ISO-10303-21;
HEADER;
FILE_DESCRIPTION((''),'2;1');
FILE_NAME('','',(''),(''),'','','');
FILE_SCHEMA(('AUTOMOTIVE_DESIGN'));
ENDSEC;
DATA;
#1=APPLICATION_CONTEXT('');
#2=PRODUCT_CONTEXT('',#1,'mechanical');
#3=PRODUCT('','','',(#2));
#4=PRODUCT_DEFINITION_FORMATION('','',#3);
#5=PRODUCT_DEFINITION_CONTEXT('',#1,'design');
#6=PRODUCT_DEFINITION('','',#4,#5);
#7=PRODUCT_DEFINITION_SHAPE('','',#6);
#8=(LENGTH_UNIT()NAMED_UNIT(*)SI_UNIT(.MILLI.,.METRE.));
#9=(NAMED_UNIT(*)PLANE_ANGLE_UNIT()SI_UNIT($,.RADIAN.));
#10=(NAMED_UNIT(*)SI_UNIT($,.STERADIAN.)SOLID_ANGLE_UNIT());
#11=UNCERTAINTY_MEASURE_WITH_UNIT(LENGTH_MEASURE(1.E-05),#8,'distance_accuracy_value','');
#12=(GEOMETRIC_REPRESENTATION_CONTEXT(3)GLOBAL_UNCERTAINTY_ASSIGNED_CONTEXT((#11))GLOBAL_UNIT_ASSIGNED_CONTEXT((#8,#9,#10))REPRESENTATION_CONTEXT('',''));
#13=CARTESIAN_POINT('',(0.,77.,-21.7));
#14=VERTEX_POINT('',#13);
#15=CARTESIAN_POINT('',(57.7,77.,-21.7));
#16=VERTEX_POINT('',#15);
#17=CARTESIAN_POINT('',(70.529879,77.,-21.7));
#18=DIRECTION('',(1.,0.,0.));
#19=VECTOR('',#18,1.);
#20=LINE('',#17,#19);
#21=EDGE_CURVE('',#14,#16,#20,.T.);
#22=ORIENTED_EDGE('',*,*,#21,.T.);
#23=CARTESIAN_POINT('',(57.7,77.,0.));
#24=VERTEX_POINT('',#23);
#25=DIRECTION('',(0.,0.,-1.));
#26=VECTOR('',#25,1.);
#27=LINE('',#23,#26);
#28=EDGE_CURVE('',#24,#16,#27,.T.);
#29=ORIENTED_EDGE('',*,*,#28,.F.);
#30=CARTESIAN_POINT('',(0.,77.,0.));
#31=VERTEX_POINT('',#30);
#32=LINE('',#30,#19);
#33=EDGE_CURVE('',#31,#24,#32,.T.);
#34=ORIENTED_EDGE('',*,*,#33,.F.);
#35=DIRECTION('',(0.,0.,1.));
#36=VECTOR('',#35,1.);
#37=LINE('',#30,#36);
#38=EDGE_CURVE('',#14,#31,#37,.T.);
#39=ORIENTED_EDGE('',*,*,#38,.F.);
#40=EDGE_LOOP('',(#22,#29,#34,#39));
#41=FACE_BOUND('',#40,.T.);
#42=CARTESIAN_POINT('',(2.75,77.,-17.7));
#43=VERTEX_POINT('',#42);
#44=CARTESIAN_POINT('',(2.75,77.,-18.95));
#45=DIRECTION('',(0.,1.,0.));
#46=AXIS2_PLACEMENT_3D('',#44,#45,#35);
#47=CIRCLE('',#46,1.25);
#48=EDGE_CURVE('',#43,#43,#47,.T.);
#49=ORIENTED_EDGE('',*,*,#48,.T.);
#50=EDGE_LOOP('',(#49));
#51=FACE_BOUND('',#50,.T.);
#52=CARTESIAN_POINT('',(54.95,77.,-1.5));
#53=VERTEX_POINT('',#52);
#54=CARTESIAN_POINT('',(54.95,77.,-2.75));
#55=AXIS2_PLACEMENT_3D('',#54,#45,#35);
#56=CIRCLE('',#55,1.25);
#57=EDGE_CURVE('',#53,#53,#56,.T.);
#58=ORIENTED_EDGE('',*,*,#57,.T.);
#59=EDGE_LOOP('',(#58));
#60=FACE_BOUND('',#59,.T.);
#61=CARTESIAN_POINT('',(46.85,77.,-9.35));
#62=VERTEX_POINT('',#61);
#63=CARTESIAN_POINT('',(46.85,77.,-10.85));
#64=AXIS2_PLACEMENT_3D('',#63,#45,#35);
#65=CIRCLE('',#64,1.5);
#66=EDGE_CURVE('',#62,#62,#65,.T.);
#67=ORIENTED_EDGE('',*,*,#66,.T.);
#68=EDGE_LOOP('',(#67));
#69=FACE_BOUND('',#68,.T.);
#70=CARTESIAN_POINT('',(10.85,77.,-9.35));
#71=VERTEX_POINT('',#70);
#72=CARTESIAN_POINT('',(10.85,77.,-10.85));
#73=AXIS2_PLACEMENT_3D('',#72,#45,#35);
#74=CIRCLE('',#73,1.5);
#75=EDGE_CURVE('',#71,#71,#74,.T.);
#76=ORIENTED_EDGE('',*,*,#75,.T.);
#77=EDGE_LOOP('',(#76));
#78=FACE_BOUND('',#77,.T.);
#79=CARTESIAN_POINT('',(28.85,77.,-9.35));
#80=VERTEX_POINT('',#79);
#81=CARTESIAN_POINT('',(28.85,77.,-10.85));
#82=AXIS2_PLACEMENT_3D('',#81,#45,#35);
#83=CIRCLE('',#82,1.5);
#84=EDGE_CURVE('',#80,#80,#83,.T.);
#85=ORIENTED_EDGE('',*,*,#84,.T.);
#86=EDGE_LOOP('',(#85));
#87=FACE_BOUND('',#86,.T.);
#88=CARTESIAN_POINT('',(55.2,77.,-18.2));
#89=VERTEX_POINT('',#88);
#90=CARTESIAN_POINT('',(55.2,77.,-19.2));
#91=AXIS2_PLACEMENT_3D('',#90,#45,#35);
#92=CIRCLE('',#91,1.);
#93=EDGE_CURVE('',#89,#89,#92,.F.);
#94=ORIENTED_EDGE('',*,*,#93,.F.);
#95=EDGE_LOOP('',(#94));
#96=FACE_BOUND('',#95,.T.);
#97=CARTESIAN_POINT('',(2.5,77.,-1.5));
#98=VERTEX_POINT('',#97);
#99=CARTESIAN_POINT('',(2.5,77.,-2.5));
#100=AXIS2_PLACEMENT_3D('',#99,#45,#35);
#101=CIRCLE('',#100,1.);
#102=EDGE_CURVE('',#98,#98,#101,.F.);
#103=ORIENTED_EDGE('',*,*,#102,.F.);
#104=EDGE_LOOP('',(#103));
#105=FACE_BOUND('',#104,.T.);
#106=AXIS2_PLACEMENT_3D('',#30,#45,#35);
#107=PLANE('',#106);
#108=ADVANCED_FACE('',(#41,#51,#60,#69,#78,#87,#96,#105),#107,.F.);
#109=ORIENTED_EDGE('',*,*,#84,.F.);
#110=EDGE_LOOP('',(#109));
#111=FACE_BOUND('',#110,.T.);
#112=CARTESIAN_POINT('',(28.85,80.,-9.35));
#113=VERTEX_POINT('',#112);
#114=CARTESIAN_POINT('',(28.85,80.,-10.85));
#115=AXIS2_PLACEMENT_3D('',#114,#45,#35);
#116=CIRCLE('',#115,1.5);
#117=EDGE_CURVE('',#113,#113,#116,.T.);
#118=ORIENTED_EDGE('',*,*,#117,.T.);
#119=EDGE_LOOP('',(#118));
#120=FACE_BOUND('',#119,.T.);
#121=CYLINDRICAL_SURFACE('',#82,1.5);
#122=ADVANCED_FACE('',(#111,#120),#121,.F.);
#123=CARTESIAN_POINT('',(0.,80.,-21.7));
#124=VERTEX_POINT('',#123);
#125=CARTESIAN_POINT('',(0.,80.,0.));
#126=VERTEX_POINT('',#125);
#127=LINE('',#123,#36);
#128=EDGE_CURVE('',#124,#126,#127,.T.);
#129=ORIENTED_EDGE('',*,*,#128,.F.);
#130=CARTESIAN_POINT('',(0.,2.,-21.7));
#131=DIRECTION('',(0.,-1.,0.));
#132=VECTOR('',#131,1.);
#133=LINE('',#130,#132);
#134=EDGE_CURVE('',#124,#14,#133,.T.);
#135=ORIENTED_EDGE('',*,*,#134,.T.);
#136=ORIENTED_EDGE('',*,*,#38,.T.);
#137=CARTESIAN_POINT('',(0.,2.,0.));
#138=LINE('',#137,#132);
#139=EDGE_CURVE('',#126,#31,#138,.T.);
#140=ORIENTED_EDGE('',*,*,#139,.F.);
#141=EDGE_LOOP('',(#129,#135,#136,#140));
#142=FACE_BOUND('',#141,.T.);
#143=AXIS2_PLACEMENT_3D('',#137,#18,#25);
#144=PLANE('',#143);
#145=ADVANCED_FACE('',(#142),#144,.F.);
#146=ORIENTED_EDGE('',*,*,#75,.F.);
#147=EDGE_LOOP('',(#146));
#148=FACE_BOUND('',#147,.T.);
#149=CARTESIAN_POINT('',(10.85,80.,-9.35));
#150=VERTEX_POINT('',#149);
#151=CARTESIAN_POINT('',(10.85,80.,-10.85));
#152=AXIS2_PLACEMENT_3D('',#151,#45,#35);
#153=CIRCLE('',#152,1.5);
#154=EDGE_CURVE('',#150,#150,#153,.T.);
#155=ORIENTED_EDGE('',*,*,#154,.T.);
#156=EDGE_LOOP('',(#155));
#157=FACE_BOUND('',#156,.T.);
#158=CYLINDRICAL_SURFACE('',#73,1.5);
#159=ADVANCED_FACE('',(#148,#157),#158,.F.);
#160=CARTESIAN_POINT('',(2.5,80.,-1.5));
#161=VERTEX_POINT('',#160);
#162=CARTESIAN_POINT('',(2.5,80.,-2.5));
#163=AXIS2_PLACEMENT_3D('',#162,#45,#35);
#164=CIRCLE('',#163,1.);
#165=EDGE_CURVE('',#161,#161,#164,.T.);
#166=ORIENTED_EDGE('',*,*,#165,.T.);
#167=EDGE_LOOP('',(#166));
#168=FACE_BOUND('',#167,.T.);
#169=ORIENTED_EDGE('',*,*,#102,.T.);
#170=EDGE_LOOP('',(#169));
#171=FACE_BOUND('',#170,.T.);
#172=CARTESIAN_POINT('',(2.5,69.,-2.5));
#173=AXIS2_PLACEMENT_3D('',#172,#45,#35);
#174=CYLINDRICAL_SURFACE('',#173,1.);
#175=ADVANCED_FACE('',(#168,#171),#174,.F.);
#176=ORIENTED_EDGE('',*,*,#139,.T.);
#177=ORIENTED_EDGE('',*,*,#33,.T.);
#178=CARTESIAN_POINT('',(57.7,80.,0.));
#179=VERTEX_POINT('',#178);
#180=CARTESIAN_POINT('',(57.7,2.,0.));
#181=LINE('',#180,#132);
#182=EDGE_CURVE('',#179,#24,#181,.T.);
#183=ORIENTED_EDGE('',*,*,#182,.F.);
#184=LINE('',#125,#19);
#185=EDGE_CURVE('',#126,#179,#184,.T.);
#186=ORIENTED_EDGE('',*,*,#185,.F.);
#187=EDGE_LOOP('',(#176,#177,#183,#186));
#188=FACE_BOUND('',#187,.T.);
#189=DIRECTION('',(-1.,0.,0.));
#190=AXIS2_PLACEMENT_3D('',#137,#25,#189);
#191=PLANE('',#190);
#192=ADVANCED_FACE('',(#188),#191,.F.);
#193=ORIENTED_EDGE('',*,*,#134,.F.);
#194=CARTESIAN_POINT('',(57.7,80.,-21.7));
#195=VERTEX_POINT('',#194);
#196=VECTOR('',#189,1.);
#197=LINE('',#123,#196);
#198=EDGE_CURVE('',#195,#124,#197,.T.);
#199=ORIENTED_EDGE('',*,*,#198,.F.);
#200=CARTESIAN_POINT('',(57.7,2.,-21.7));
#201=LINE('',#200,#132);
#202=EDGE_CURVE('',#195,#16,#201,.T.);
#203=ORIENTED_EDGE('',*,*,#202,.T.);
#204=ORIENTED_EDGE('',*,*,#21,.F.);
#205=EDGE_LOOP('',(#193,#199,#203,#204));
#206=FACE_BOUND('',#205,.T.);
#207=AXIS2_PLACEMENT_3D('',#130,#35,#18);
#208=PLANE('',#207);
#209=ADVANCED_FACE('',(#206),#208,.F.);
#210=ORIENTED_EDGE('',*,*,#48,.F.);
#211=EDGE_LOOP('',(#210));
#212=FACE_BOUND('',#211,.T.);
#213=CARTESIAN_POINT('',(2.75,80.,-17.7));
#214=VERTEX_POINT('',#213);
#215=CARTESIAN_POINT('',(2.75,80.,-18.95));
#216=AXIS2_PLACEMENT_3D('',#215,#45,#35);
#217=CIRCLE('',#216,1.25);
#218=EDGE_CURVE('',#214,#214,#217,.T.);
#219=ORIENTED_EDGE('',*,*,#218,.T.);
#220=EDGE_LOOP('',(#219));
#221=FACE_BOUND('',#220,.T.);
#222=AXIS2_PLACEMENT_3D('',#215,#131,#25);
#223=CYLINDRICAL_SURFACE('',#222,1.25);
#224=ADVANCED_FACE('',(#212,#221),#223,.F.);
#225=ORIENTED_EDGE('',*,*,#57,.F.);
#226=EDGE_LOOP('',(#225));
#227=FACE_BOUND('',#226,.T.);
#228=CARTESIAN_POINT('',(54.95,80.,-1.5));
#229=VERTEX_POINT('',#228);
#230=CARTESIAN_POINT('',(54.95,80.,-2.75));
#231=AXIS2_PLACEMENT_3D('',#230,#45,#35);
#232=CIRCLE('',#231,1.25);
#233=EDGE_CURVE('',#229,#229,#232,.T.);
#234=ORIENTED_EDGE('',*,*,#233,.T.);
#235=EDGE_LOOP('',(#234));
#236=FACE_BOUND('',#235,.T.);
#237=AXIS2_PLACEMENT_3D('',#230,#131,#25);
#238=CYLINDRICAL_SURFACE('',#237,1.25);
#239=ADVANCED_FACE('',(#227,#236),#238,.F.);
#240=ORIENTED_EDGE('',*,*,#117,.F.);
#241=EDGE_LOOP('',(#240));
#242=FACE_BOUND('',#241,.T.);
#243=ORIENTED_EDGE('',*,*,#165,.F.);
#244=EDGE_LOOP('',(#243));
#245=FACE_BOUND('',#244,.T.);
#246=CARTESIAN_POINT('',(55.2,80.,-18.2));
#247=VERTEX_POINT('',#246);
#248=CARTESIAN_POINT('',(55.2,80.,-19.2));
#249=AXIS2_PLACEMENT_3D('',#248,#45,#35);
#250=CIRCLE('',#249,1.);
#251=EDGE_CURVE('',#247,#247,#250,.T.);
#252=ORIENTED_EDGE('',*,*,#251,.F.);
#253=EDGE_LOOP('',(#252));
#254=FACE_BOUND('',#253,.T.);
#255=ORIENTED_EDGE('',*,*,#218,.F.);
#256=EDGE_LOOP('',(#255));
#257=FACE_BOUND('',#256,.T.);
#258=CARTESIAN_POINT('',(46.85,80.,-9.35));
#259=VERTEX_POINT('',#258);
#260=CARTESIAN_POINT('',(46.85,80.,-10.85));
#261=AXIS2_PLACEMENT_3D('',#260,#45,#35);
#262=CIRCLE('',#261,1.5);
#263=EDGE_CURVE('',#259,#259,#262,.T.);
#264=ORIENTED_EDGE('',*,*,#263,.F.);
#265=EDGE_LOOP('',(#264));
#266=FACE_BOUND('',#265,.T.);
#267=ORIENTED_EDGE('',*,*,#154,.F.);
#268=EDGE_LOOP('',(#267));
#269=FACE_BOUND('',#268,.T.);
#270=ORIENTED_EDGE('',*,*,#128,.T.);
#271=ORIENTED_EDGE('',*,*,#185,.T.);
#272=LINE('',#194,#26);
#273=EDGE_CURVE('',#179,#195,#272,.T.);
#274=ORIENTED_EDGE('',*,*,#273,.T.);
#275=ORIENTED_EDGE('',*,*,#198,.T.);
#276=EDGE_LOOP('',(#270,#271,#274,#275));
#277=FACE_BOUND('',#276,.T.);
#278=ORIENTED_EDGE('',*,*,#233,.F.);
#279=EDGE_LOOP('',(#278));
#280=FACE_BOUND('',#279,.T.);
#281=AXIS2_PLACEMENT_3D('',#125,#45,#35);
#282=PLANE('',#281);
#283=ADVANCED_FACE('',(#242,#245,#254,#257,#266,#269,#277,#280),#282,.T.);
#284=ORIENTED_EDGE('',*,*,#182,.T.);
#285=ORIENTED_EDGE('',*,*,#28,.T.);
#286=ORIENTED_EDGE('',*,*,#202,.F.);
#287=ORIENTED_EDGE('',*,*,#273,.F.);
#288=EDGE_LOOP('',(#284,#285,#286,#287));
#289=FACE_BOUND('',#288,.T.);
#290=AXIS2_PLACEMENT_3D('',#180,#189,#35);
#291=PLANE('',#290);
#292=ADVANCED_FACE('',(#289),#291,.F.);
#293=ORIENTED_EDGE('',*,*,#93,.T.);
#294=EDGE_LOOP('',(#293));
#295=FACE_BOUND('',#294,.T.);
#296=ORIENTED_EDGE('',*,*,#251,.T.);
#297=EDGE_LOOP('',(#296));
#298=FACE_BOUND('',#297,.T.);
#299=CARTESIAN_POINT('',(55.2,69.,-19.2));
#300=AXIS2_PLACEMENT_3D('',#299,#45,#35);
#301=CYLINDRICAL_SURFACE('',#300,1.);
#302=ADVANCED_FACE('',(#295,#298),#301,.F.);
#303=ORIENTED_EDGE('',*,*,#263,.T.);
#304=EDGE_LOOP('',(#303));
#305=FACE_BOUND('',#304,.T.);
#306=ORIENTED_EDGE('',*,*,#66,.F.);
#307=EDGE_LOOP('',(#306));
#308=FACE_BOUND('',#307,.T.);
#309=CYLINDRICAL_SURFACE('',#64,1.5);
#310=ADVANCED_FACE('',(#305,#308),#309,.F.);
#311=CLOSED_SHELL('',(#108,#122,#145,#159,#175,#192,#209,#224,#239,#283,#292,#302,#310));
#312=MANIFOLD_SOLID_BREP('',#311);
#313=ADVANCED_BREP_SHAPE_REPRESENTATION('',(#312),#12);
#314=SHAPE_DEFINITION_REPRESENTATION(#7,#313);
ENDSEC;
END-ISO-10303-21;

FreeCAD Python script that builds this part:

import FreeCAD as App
import Part
import Sketcher

V = App.Vector
Q = App.Units.Quantity


def edges_at(feature, points):
    """Names of the edges that pass closest to the given points."""
    edges = feature.Shape.Edges
    near = lambda p: min(range(len(edges)), key=lambda i: edges[i].distToShape(Part.Vertex(*p))[0])
    return sorted({f"Edge{near(p) + 1}" for p in points})


def add_polygon(sketch, points):
    """Adds a closed chain of lines whose ends are joined by coincident constraints."""
    first, n = sketch.GeometryCount, len(points)
    for a, b in zip(points, points[1:] + points[:1]):
        sketch.addGeometry(Part.LineSegment(App.Vector(*a, 0), App.Vector(*b, 0)), False)
    for i in range(n):
        sketch.addConstraint(Sketcher.Constraint("Coincident", first + i, 2, first + (i + 1) % n, 1))

doc = App.newDocument("Part")
body = doc.addObject("PartDesign::Body", "Body")

sketch1 = doc.addObject("Sketcher::SketchObject", "Sketch")
body.addObject(sketch1)
sketch1.AttachmentSupport = (doc.XZ_Plane, [""])
sketch1.MapMode = "FlatFace"
add_polygon(sketch1, [(0, -22), (0, 0), (58, 0), (58, -22)])
sketch1.addConstraint([
    Sketcher.Constraint("Vertical", 0),
    Sketcher.Constraint("Horizontal", 1),
    Sketcher.Constraint("Vertical", 2),
    Sketcher.Constraint("Horizontal", 3),
    Sketcher.Constraint("Coincident", 0, 2, -1, 1),
    Sketcher.Constraint("DistanceX", 1, 1, 1, 2, Q("57.7 mm")),
    Sketcher.Constraint("DistanceY", 0, 1, 0, 2, Q("21.7 mm")),
])
pad1 = doc.addObject("PartDesign::Pad", "Pad")
body.addObject(pad1)
pad1.Profile = sketch1
pad1.Length = 2
pad1.Reversed = True

sketch2 = doc.addObject("Sketcher::SketchObject", "Sketch001")
body.addObject(sketch2)
sketch2.AttachmentSupport = (doc.XZ_Plane, [""])
sketch2.MapMode = "FlatFace"
sketch2.AttachmentOffset = App.Placement(V(0, 0, -2), App.Rotation())
add_polygon(sketch2, [(0, -22), (0, 0), (58, 0), (58, -22)])
add_polygon(sketch2, [(56, -2), (2, -2), (2, -20), (56, -20)])
sketch2.addConstraint([
    Sketcher.Constraint("Vertical", 0),
    Sketcher.Constraint("Horizontal", 1),
    Sketcher.Constraint("Vertical", 2),
    Sketcher.Constraint("Horizontal", 3),
    Sketcher.Constraint("Horizontal", 4),
    Sketcher.Constraint("Vertical", 5),
    Sketcher.Constraint("Horizontal", 6),
    Sketcher.Constraint("Vertical", 7),
    Sketcher.Constraint("Coincident", 0, 2, -1, 1),
    Sketcher.Constraint("DistanceX", 1, 1, 1, 2, Q("57.7 mm")),
    Sketcher.Constraint("DistanceX", 4, 2, 4, 1, Q("54.7 mm")),
    Sketcher.Constraint("DistanceY", 0, 1, 0, 2, Q("21.7 mm")),
    Sketcher.Constraint("DistanceY", 5, 2, 5, 1, Q("18.7 mm")),
    Sketcher.Constraint("DistanceX", -1, 1, 4, 2, Q("1.5 mm")),
    Sketcher.Constraint("DistanceY", 4, 2, -1, 1, Q("1.5 mm")),
])
pad2 = doc.addObject("PartDesign::Pad", "Pad001")
body.addObject(pad2)
pad2.Profile = sketch2
pad2.Length = 75
pad2.Reversed = True
doc.recompute()

fillet = doc.addObject("PartDesign::Fillet", "Fillet")
body.addObject(fillet)
fillet.Base = (pad2, edges_at(pad2, [
    (1.5, 39.5, -20.2),
    (1.5, 39.5, -1.5),
    (56.2, 39.5, -1.5),
    (56.2, 39.5, -20.2),
]))
fillet.Radius = 8

sketch3 = doc.addObject("Sketcher::SketchObject", "Sketch002")
body.addObject(sketch3)
sketch3.AttachmentSupport = (doc.XZ_Plane, [""])
sketch3.MapMode = "FlatFace"
sketch3.AttachmentOffset = App.Placement(V(0, 0, -77), App.Rotation())
add_polygon(sketch3, [(1.5, -20.2), (1.5, -17.7), (40.1, -17.7), (40.1, -20.2)])
sketch3.addConstraint([
    Sketcher.Constraint("Vertical", 0),
    Sketcher.Constraint("Horizontal", 1),
    Sketcher.Constraint("Vertical", 2),
    Sketcher.Constraint("Horizontal", 3),
    Sketcher.Constraint("DistanceY", 0, 1, 0, 2, Q("2.5 mm")),
    Sketcher.Constraint("DistanceX", -1, 1, 0, 2, Q("1.5 mm")),
    Sketcher.Constraint("DistanceY", 0, 2, -1, 1, Q("17.7 mm")),
    Sketcher.Constraint("DistanceX", 1, 1, 1, 2, Q("38.583587 mm")),
])
pocket1 = doc.addObject("PartDesign::Pocket", "Pocket")
body.addObject(pocket1)
pocket1.Profile = sketch3
pocket1.Length = 75
pocket1.Reversed = True

sketch4 = doc.addObject("Sketcher::SketchObject", "Sketch003")
body.addObject(sketch4)
sketch4.AttachmentSupport = (doc.XZ_Plane, [""])
sketch4.MapMode = "FlatFace"
sketch4.AttachmentOffset = App.Placement(V(0, 0, -77), App.Rotation())
add_polygon(sketch4, [(39.1, -4), (39.1, -1.5), (56.2, -1.5), (56.2, -4)])
sketch4.addConstraint([
    Sketcher.Constraint("Vertical", 0),
    Sketcher.Constraint("Horizontal", 1),
    Sketcher.Constraint("Vertical", 2),
    Sketcher.Constraint("Horizontal", 3),
    Sketcher.Constraint("DistanceY", 0, 1, 0, 2, Q("2.5 mm")),
    Sketcher.Constraint("DistanceY", 2, 2, -1, 1, Q("4 mm")),
    Sketcher.Constraint("DistanceX", -1, 1, 1, 2, Q("56.2 mm")),
    Sketcher.Constraint("DistanceX", 1, 1, 1, 2, Q("17.0894 mm")),
])
pocket2 = doc.addObject("PartDesign::Pocket", "Pocket001")
body.addObject(pocket2)
pocket2.Profile = sketch4
pocket2.Length = 75
pocket2.Reversed = True

sketch5 = doc.addObject("Sketcher::SketchObject", "Sketch004")
body.addObject(sketch5)
sketch5.AttachmentSupport = (doc.XZ_Plane, [""])
sketch5.MapMode = "FlatFace"
sketch5.AttachmentOffset = App.Placement(V(0, 0, -77), App.Rotation())
sketch5.addGeometry([
    Part.Circle(V(55.2, -19.2, 0), V(0, 0, 1), 1),
    Part.Circle(V(2.5, -2.5, 0), V(0, 0, 1), 1),
], False)
sketch5.addConstraint([
    Sketcher.Constraint("Equal", 0, 1),
    Sketcher.Constraint("Diameter", 0, Q("2 mm")),
    Sketcher.Constraint("DistanceX", -1, 1, 0, 3, Q("55.2 mm")),
    Sketcher.Constraint("DistanceY", 0, 3, -1, 1, Q("19.2 mm")),
    Sketcher.Constraint("DistanceX", -1, 1, 1, 3, Q("2.5 mm")),
    Sketcher.Constraint("DistanceY", 1, 3, -1, 1, Q("2.5 mm")),
])
pocket3 = doc.addObject("PartDesign::Pocket", "Pocket002")
body.addObject(pocket3)
pocket3.Profile = sketch5
pocket3.Length = 8
pocket3.Reversed = True

sketch6 = doc.addObject("Sketcher::SketchObject", "Sketch005")
body.addObject(sketch6)
sketch6.AttachmentSupport = (doc.XZ_Plane, [""])
sketch6.MapMode = "FlatFace"
sketch6.AttachmentOffset = App.Placement(V(0, 0, -80), App.Rotation())
add_polygon(sketch6, [(0, -21.7), (0, 0), (57.7, 0), (57.7, -21.7)])
sketch6.addGeometry(Part.Circle(V(2.5, -2.5, 0), V(0, 0, 1), 1), False)
sketch6.addGeometry(Part.Circle(V(55, -2.8, 0), V(0, 0, 1), 1.2), False)
sketch6.addGeometry(Part.Circle(V(2.8, -18.9, 0), V(0, 0, 1), 1.2), False)
sketch6.addGeometry(Part.Circle(V(55.2, -19.2, 0), V(0, 0, 1), 1), False)
sketch6.addConstraint([
    Sketcher.Constraint("Vertical", 0),
    Sketcher.Constraint("Horizontal", 1),
    Sketcher.Constraint("Vertical", 2),
    Sketcher.Constraint("Horizontal", 3),
    Sketcher.Constraint("Coincident", 0, 2, -1, 1),
    Sketcher.Constraint("Equal", 5, 6),
    Sketcher.Constraint("Equal", 4, 7),
    Sketcher.Constraint("Diameter", 4, Q("2 mm")),
    Sketcher.Constraint("Diameter", 5, Q("2.5 mm")),
    Sketcher.Constraint("DistanceX", 1, 1, 1, 2, Q("57.7 mm")),
    Sketcher.Constraint("DistanceY", 0, 1, 0, 2, Q("21.7 mm")),
    Sketcher.Constraint("DistanceX", -1, 1, 4, 3, Q("2.5 mm")),
    Sketcher.Constraint("DistanceY", 4, 3, -1, 1, Q("2.5 mm")),
    Sketcher.Constraint("DistanceX", -1, 1, 7, 3, Q("55.2 mm")),
    Sketcher.Constraint("DistanceY", 7, 3, -1, 1, Q("19.2 mm")),
    Sketcher.Constraint("DistanceX", 6, 3, 5, 3, Q("52.2 mm")),
    Sketcher.Constraint("DistanceY", 6, 3, 5, 3, Q("16.2 mm")),
    Sketcher.Constraint("DistanceX", -1, 1, 5, 3, Q("54.95 mm")),
    Sketcher.Constraint("DistanceY", 5, 3, -1, 1, Q("2.75 mm")),
])
pad3 = doc.addObject("PartDesign::Pad", "Pad002")
body.addObject(pad3)
pad3.Profile = sketch6
pad3.Length = 3

sketch7 = doc.addObject("Sketcher::SketchObject", "Sketch006")
body.addObject(sketch7)
sketch7.AttachmentSupport = (doc.XZ_Plane, [""])
sketch7.MapMode = "FlatFace"
sketch7.AttachmentOffset = App.Placement(V(0, 0, -80), App.Rotation())
sketch7.addGeometry([
    Part.Circle(V(10.8, -10.8, 0), V(0, 0, 1), 1.5),
    Part.Circle(V(28.9, -10.8, 0), V(0, 0, 1), 1.5),
    Part.Circle(V(46.9, -10.8, 0), V(0, 0, 1), 1.5),
], False)
sketch7.addConstraint([
    Sketcher.Constraint("Equal", 0, 1),
    Sketcher.Constraint("Equal", 1, 2),
    Sketcher.Constraint("Horizontal", 0, 3, 1, 3),
    Sketcher.Constraint("Horizontal", 1, 3, 2, 3),
    Sketcher.Constraint("Diameter", 0, Q("3 mm")),
    Sketcher.Constraint("DistanceX", 0, 3, 1, 3, Q("18 mm")),
    Sketcher.Constraint("DistanceX", 1, 3, 2, 3, Q("18 mm")),
    Sketcher.Constraint("DistanceX", -1, 1, 0, 3, Q("10.85 mm")),
    Sketcher.Constraint("DistanceY", 0, 3, -1, 1, Q("10.85 mm")),
])
pocket4 = doc.addObject("PartDesign::Pocket", "Pocket003")
body.addObject(pocket4)
pocket4.Profile = sketch7
pocket4.Length = 3
pocket4.Reversed = True

sketch8 = doc.addObject("Sketcher::SketchObject", "Sketch007")
body.addObject(sketch8)
sketch8.AttachmentSupport = (doc.XZ_Plane, [""])
sketch8.MapMode = "FlatFace"
sketch8.AttachmentOffset = App.Placement(V(0, 0, -3), App.Rotation())
sketch8.addGeometry([
    Part.Circle(V(10.8, -10.8, 0), V(0, 0, 1), 1.5),
    Part.Circle(V(28.9, -10.8, 0), V(0, 0, 1), 1.5),
    Part.Circle(V(46.9, -10.8, 0), V(0, 0, 1), 1.5),
], False)
sketch8.addConstraint([
    Sketcher.Constraint("Equal", 0, 1),
    Sketcher.Constraint("Equal", 1, 2),
    Sketcher.Constraint("Horizontal", 0, 3, 1, 3),
    Sketcher.Constraint("Horizontal", 1, 3, 2, 3),
    Sketcher.Constraint("Diameter", 0, Q("3 mm")),
    Sketcher.Constraint("DistanceX", 0, 3, 1, 3, Q("18 mm")),
    Sketcher.Constraint("DistanceX", 1, 3, 2, 3, Q("18 mm")),
    Sketcher.Constraint("DistanceX", -1, 1, 0, 3, Q("10.85 mm")),
    Sketcher.Constraint("DistanceY", 0, 3, -1, 1, Q("10.85 mm")),
])
pocket5 = doc.addObject("PartDesign::Pocket", "Pocket004")
body.addObject(pocket5)
pocket5.Profile = sketch8
pocket5.Length = 3
pocket5.Reversed = True

sketch9 = doc.addObject("Sketcher::SketchObject", "Sketch008")
body.addObject(sketch9)
sketch9.AttachmentSupport = (doc.XY_Plane, [""])
sketch9.MapMode = "FlatFace"
sketch9.AttachmentOffset = App.Placement(V(0, 0, -21.7), App.Rotation())
add_polygon(sketch9, [(71, 77), (71, -21), (-21, -21), (-21, 77)])
sketch9.addConstraint([
    Sketcher.Constraint("Vertical", 0),
    Sketcher.Constraint("Horizontal", 1),
    Sketcher.Constraint("Vertical", 2),
    Sketcher.Constraint("Horizontal", 3),
    Sketcher.Constraint("DistanceY", -1, 1, 2, 2, Q("77 mm")),
    Sketcher.Constraint("DistanceY", 0, 2, 0, 1, Q("98.377859 mm")),
    Sketcher.Constraint("DistanceX", 1, 2, 1, 1, Q("91.990762 mm")),
    Sketcher.Constraint("DistanceX", -1, 1, 0, 2, Q("70.529879 mm")),
])
pocket6 = doc.addObject("PartDesign::Pocket", "Pocket005")
body.addObject(pocket6)
pocket6.Profile = sketch9
pocket6.Length = 69
pocket6.Reversed = True

doc.recompute()
